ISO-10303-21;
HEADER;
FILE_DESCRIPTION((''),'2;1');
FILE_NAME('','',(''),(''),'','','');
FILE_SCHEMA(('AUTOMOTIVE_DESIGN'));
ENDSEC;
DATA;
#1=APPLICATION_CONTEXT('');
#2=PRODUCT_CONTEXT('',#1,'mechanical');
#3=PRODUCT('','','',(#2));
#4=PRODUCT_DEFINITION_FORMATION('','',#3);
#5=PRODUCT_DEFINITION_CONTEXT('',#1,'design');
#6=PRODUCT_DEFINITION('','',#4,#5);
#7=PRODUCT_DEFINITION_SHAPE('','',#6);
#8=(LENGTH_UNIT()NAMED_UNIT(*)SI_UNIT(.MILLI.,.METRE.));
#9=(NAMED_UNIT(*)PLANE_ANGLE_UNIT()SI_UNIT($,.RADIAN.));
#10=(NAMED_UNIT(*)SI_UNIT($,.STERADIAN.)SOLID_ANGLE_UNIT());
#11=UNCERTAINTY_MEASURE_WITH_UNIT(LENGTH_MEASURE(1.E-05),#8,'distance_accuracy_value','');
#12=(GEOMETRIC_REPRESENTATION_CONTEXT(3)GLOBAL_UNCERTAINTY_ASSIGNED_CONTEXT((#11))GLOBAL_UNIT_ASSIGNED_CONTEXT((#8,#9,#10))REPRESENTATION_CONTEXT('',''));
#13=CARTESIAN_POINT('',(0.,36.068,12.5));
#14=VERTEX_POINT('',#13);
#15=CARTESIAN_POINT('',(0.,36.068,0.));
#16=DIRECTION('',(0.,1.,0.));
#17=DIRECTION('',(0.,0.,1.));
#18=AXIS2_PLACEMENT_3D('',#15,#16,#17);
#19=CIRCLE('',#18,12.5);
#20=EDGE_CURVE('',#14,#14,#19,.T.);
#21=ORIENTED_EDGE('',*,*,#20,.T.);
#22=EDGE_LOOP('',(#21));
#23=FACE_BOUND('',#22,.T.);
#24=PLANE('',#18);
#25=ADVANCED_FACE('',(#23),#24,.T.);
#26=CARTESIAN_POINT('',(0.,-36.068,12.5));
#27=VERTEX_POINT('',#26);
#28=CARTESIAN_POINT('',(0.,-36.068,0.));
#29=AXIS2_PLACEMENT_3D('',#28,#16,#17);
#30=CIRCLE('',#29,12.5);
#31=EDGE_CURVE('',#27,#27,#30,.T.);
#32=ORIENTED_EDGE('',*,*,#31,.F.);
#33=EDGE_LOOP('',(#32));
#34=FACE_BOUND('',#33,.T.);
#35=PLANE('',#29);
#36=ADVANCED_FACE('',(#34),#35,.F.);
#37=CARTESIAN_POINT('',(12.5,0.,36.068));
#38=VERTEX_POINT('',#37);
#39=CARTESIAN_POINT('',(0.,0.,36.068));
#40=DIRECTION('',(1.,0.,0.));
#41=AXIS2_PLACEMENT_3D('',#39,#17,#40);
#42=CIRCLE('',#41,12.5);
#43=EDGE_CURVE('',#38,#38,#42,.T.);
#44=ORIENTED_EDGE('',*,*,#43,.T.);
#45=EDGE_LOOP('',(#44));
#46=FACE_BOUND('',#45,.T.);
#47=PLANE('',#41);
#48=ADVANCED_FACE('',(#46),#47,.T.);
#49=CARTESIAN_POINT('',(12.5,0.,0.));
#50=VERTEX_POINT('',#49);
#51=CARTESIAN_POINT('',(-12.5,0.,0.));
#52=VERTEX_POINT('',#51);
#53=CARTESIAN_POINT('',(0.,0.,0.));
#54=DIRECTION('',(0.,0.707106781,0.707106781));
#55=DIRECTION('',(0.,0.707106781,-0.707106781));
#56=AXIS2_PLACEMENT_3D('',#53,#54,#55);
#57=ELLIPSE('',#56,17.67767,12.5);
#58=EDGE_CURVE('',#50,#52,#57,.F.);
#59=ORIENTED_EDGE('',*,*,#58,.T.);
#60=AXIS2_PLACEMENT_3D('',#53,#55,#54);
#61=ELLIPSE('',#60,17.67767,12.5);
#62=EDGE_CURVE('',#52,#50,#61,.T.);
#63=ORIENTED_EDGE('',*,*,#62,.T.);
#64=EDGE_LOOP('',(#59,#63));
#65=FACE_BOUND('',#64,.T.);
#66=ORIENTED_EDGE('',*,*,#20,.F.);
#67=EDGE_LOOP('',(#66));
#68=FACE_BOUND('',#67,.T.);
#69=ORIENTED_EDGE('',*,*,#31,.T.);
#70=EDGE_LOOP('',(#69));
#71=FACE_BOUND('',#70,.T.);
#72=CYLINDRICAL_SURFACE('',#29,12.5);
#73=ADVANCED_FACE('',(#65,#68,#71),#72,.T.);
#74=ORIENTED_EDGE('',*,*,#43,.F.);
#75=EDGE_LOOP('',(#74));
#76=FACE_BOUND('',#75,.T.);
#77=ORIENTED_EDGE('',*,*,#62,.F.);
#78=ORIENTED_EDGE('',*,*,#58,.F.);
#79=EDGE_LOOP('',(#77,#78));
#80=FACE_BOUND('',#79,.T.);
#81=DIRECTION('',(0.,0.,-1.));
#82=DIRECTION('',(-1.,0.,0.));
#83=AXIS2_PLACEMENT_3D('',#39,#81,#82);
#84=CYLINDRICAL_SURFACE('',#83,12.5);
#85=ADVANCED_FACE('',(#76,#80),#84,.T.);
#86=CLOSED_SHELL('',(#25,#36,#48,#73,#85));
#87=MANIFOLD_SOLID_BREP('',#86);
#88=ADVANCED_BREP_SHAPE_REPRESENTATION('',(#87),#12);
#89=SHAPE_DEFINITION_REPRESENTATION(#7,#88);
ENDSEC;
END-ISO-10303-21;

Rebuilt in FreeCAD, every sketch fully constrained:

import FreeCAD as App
import Part
import Sketcher

V = App.Vector
Q = App.Units.Quantity

doc = App.newDocument("Part")
body = doc.addObject("PartDesign::Body", "Body")

# Sketch on XZ plane
sketch1 = doc.addObject("Sketcher::SketchObject", "Sketch")
body.addObject(sketch1)
sketch1.AttachmentSupport = (doc.XZ_Plane, [""])
sketch1.MapMode = "FlatFace"
sketch1.addGeometry(Part.Circle(V(0, 0, 0), V(0, 0, 1), 12), False)
sketch1.addConstraint([
    Sketcher.Constraint("Coincident", 0, 3, -1, 1),
    Sketcher.Constraint("Diameter", 0, Q("25 mm")),
])
pad1 = doc.addObject("PartDesign::Pad", "Pad")
body.addObject(pad1)
pad1.Profile = sketch1
pad1.Type = "TwoLengths"
pad1.Length = 36.068
pad1.Length2 = 36.068
pad1.Reversed = True

# Sketch on XY plane
sketch2 = doc.addObject("Sketcher::SketchObject", "Sketch001")
body.addObject(sketch2)
sketch2.AttachmentSupport = (doc.XY_Plane, [""])
sketch2.MapMode = "FlatFace"
sketch2.addGeometry(Part.Circle(V(0, 0, 0), V(0, 0, 1), 12), False)
sketch2.addConstraint([
    Sketcher.Constraint("Coincident", 0, 3, -1, 1),
    Sketcher.Constraint("Diameter", 0, Q("25 mm")),
])
pad2 = doc.addObject("PartDesign::Pad", "Pad001")
body.addObject(pad2)
pad2.Profile = sketch2
pad2.Length = 36.068

doc.recompute()
